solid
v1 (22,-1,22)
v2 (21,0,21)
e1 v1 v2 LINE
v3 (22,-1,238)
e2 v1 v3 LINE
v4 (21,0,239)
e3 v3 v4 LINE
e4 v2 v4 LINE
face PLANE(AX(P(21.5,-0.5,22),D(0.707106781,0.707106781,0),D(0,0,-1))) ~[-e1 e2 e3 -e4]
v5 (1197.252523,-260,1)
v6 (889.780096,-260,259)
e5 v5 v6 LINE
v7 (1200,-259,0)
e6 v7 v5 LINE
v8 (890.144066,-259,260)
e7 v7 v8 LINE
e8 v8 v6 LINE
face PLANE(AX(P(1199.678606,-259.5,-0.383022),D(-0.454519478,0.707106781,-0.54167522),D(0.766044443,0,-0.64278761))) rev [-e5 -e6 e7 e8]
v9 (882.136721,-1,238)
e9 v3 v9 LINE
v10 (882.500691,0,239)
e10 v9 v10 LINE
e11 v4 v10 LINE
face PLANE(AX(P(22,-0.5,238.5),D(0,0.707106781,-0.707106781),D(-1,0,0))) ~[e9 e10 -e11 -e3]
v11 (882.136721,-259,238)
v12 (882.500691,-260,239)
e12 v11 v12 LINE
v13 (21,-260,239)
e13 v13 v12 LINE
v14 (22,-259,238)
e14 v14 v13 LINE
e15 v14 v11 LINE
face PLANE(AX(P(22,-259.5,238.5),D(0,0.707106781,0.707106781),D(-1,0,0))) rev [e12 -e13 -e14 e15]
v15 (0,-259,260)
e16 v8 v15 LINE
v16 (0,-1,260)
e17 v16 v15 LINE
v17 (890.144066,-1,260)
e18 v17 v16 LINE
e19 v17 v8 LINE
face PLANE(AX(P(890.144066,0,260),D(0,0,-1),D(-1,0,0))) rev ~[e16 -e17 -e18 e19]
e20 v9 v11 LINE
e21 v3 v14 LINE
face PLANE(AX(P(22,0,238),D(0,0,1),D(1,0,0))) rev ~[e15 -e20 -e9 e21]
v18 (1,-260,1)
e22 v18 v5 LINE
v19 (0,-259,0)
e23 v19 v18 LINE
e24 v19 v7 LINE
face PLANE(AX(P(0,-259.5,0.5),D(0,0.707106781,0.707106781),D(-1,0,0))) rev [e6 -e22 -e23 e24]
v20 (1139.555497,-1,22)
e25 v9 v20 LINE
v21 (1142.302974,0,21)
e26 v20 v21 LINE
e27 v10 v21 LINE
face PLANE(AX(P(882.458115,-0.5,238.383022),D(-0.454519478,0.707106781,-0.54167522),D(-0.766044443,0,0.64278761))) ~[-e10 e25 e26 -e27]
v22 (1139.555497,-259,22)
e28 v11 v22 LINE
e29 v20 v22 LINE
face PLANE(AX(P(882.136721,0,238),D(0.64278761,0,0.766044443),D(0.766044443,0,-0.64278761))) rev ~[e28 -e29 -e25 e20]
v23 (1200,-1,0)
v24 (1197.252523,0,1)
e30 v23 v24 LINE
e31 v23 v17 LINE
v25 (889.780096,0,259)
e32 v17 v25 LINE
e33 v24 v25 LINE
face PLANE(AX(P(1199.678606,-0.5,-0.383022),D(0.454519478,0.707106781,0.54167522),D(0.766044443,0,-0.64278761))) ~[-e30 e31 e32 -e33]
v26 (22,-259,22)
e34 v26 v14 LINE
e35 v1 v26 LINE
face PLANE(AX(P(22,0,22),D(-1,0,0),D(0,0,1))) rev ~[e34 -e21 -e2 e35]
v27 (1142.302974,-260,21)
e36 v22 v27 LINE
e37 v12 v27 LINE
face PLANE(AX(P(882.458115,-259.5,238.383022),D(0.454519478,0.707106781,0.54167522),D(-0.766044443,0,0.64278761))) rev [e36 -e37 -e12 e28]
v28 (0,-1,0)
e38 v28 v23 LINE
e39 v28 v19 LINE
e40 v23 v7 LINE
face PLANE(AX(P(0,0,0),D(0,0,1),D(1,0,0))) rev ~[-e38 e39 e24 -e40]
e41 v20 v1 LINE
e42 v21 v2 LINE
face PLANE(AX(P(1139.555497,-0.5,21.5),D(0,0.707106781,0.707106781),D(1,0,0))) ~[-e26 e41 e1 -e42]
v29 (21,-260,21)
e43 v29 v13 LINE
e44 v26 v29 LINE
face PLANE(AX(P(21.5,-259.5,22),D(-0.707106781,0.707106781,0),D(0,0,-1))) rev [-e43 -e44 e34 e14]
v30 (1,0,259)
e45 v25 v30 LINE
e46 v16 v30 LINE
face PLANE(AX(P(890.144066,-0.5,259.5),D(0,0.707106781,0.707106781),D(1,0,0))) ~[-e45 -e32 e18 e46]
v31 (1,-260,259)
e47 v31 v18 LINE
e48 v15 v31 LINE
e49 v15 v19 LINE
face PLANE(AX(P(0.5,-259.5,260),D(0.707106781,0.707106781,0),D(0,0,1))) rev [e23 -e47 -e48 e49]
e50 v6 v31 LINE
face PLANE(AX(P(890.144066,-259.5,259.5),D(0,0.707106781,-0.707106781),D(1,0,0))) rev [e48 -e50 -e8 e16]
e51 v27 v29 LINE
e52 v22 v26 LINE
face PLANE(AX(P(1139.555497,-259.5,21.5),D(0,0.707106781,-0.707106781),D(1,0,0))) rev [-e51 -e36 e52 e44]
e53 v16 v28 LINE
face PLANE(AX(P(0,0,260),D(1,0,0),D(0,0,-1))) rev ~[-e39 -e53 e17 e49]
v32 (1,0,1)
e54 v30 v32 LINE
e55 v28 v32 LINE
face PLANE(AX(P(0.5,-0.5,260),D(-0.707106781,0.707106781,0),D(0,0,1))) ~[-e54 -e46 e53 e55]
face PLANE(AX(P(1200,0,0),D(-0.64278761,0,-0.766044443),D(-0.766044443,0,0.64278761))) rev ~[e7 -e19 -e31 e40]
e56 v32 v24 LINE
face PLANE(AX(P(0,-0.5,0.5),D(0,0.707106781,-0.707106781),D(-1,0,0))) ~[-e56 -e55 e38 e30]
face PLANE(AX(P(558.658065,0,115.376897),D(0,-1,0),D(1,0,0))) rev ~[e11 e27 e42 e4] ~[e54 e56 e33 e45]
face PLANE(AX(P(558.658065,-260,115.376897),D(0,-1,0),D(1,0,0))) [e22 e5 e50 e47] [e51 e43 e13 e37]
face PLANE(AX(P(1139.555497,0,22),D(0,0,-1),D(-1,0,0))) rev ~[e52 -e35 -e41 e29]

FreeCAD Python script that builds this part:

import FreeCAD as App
import Part
import Sketcher
Q = App.Units.Quantity


def edges_at(feature, points):
    """Names of the edges that pass closest to the given points."""
    edges = feature.Shape.Edges
    near = lambda p: min(range(len(edges)), key=lambda i: edges[i].distToShape(Part.Vertex(*p))[0])
    return sorted({f"Edge{near(p) + 1}" for p in points})


def add_polygon(sketch, points):
    """Adds a closed chain of lines whose ends are joined by coincident constraints."""
    first, n = sketch.GeometryCount, len(points)
    for a, b in zip(points, points[1:] + points[:1]):
        sketch.addGeometry(Part.LineSegment(App.Vector(*a, 0), App.Vector(*b, 0)), False)
    for i in range(n):
        sketch.addConstraint(Sketcher.Constraint("Coincident", first + i, 2, first + (i + 1) % n, 1))

doc = App.newDocument("Part")
body = doc.addObject("PartDesign::Body", "Body")

sketch1 = doc.addObject("Sketcher::SketchObject", "Sketch")
body.addObject(sketch1)
sketch1.AttachmentSupport = (doc.XZ_Plane, [""])
sketch1.MapMode = "FlatFace"
add_polygon(sketch1, [(0, 260), (0, 0), (1200, 0), (890, 260)])
add_polygon(sketch1, [(1140, 22), (22, 22), (22, 238), (882, 238)])
sketch1.addConstraint(Sketcher.Constraint("Vertical", 0))
sketch1.addConstraint(Sketcher.Constraint("Horizontal", 1))
sketch1.addConstraint(Sketcher.Constraint("Horizontal", 3))
sketch1.addConstraint(Sketcher.Constraint("Horizontal", 4))
sketch1.addConstraint(Sketcher.Constraint("Vertical", 5))
sketch1.addConstraint(Sketcher.Constraint("Horizontal", 6))
sketch1.addConstraint(Sketcher.Constraint("Coincident", 0, 2, -1, 1))
sketch1.addConstraint(Sketcher.Constraint("Parallel", 2, 7))
sketch1.addConstraint(Sketcher.Constraint("DistanceX", 1, 1, 1, 2, 1200.0))
sketch1.addConstraint(Sketcher.Constraint("DistanceY", 0, 2, 0, 1, 260.0))
sketch1.addConstraint(Sketcher.Constraint("DistanceY", 5, 1, 5, 2, 216.0))
sketch1.addConstraint(Sketcher.Constraint("Angle", 2, Q("140 deg")))
sketch1.addConstraint(Sketcher.Constraint("DistanceX", -1, 1, 4, 2, 22.0))
sketch1.addConstraint(Sketcher.Constraint("DistanceY", -1, 1, 4, 2, 22.0))
sketch1.addConstraint(Sketcher.Constraint("DistanceX", 6, 1, 6, 2, 860.136721))
pad1 = doc.addObject("PartDesign::Pad", "Pad")
body.addObject(pad1)
pad1.Profile = sketch1
pad1.Length = 260
doc.recompute()

chamfer = doc.addObject("PartDesign::Chamfer", "Chamfer")
body.addObject(chamfer)
chamfer.Base = (pad1, edges_at(pad1, [
    (445.072, -260, 260),
    (452.068, -260, 238),
    (580.778, -260, 22),
    (600, -260, 0),
    (0, -260, 130),
    (22, -260, 130),
    (1045.072, -260, 130),
    (1010.846, -260, 130),
    (580.778, 0, 22),
    (445.072, 0, 260),
    (1045.072, 0, 130),
    (1010.846, 0, 130),
    (452.068, 0, 238),
    (0, 0, 130),
    (22, 0, 130),
    (600, 0, 0),
]))
chamfer.Size = 1

doc.recompute()
